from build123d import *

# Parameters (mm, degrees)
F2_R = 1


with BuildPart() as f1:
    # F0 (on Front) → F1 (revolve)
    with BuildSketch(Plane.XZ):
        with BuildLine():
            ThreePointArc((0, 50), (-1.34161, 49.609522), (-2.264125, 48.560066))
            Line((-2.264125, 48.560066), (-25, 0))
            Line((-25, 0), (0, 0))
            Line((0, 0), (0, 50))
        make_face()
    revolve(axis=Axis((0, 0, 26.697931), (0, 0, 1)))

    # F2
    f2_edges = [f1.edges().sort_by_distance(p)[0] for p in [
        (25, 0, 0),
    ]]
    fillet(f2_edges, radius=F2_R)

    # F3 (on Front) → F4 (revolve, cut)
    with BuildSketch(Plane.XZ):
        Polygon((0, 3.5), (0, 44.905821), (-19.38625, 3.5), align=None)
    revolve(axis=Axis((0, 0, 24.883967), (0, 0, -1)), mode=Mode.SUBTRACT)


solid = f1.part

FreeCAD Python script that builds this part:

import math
import FreeCAD as App
import Part
import Sketcher

V = App.Vector


def edges_at(feature, points):
    """Names of the edges that pass closest to the given points."""
    edges = feature.Shape.Edges
    near = lambda p: min(range(len(edges)), key=lambda i: edges[i].distToShape(Part.Vertex(*p))[0])
    return sorted({f"Edge{near(p) + 1}" for p in points})

doc = App.newDocument("Part")
params = doc.addObject("Spreadsheet::Sheet", "Params")
for row, (alias, value) in enumerate([
    ("sketch1_radius", "2.500001 mm"),
    ("sketch1_width", "25 mm"),
    ("sketch1_height", "50 mm"),
    ("revolution_angle", "360 deg"),
    ("fillet_radius", "1 mm"),
    ("groove_angle", "360 deg"),
], start=1):
    params.set(f"A{row}", alias)
    params.set(f"B{row}", "=" + value)
    params.setAlias(f"B{row}", alias)

body = doc.addObject("PartDesign::Body", "Body")

sketch1 = body.newObject("Sketcher::SketchObject", "Sketch")
sketch1.AttachmentSupport = (doc.getObject("XZ_Plane"), [""])
sketch1.MapMode = "FlatFace"
sketch1.addGeometry([
    Part.ArcOfCircle(Part.Circle(V(0, 47.5, 0), V(0, 0, 1), 2.5), math.radians(90), math.radians(155)),
    Part.LineSegment(V(-2.3, 48.6, 0), V(-25, 0, 0)),
    Part.LineSegment(V(-25, 0, 0), V(0, 0, 0)),
    Part.LineSegment(V(0, 0, 0), V(0, 50, 0)),
], False)
sketch1.addConstraint([
    Sketcher.Constraint("Tangent", 0, 2, 1, 1),
    Sketcher.Constraint("Coincident", 1, 2, 2, 1),
    Sketcher.Constraint("Coincident", 2, 2, 3, 1),
    Sketcher.Constraint("Coincident", 3, 2, 0, 1),
    Sketcher.Constraint("Horizontal", 2),
    Sketcher.Constraint("Vertical", 3),
    Sketcher.Constraint("Coincident", 2, 2, -1, 1),
    Sketcher.Constraint("PointOnObject", 0, 3, -2),
    Sketcher.Constraint("Radius", 0, 2.500001),
    Sketcher.Constraint("DistanceX", 2, 1, 2, 2, 25.0),
    Sketcher.Constraint("DistanceY", 3, 1, 3, 2, 50.0),
])
sketch1.setExpression("Constraints[8]", "Params.sketch1_radius")
sketch1.setExpression("Constraints[9]", "Params.sketch1_width")
sketch1.setExpression("Constraints[10]", "Params.sketch1_height")
revolution = body.newObject("PartDesign::Revolution", "Revolution")
revolution.Profile = sketch1
revolution.ReferenceAxis = (sketch1, ["V_Axis"])
revolution.setExpression("Angle", "Params.revolution_angle")
doc.recompute()

fillet = body.newObject("PartDesign::Fillet", "Fillet")
fillet.Base = (revolution, edges_at(revolution, [(25, 0, 0)]))
fillet.setExpression("Radius", "Params.fillet_radius")

sketch2 = body.newObject("Sketcher::SketchObject", "Sketch001")
sketch2.AttachmentSupport = (doc.getObject("XZ_Plane"), [""])
sketch2.MapMode = "FlatFace"
sketch2.addGeometry([
    Part.LineSegment(V(0, 4, 0), V(0, 45, 0)),
    Part.LineSegment(V(0, 45, 0), V(-19, 4, 0)),
    Part.LineSegment(V(-19, 4, 0), V(0, 4, 0)),
], False)
sketch2.addConstraint([
    Sketcher.Constraint("Coincident", 0, 2, 1, 1),
    Sketcher.Constraint("Coincident", 1, 2, 2, 1),
    Sketcher.Constraint("Coincident", 2, 2, 0, 1),
    Sketcher.Constraint("Vertical", 0),
    Sketcher.Constraint("Horizontal", 2),
    Sketcher.Constraint("PointOnObject", 0, 2, -2),
    Sketcher.Constraint("DistanceY", -1, 1, 1, 2, 3.5),
    Sketcher.Constraint("DistanceX", 2, 1, 2, 2, 19.38625),
    Sketcher.Constraint("DistanceY", 0, 1, 0, 2, 41.405821),
])
groove = body.newObject("PartDesign::Groove", "Groove")
groove.Profile = sketch2
groove.ReferenceAxis = (sketch2, ["V_Axis"])
groove.setExpression("Angle", "Params.groove_angle")

doc.recompute()
